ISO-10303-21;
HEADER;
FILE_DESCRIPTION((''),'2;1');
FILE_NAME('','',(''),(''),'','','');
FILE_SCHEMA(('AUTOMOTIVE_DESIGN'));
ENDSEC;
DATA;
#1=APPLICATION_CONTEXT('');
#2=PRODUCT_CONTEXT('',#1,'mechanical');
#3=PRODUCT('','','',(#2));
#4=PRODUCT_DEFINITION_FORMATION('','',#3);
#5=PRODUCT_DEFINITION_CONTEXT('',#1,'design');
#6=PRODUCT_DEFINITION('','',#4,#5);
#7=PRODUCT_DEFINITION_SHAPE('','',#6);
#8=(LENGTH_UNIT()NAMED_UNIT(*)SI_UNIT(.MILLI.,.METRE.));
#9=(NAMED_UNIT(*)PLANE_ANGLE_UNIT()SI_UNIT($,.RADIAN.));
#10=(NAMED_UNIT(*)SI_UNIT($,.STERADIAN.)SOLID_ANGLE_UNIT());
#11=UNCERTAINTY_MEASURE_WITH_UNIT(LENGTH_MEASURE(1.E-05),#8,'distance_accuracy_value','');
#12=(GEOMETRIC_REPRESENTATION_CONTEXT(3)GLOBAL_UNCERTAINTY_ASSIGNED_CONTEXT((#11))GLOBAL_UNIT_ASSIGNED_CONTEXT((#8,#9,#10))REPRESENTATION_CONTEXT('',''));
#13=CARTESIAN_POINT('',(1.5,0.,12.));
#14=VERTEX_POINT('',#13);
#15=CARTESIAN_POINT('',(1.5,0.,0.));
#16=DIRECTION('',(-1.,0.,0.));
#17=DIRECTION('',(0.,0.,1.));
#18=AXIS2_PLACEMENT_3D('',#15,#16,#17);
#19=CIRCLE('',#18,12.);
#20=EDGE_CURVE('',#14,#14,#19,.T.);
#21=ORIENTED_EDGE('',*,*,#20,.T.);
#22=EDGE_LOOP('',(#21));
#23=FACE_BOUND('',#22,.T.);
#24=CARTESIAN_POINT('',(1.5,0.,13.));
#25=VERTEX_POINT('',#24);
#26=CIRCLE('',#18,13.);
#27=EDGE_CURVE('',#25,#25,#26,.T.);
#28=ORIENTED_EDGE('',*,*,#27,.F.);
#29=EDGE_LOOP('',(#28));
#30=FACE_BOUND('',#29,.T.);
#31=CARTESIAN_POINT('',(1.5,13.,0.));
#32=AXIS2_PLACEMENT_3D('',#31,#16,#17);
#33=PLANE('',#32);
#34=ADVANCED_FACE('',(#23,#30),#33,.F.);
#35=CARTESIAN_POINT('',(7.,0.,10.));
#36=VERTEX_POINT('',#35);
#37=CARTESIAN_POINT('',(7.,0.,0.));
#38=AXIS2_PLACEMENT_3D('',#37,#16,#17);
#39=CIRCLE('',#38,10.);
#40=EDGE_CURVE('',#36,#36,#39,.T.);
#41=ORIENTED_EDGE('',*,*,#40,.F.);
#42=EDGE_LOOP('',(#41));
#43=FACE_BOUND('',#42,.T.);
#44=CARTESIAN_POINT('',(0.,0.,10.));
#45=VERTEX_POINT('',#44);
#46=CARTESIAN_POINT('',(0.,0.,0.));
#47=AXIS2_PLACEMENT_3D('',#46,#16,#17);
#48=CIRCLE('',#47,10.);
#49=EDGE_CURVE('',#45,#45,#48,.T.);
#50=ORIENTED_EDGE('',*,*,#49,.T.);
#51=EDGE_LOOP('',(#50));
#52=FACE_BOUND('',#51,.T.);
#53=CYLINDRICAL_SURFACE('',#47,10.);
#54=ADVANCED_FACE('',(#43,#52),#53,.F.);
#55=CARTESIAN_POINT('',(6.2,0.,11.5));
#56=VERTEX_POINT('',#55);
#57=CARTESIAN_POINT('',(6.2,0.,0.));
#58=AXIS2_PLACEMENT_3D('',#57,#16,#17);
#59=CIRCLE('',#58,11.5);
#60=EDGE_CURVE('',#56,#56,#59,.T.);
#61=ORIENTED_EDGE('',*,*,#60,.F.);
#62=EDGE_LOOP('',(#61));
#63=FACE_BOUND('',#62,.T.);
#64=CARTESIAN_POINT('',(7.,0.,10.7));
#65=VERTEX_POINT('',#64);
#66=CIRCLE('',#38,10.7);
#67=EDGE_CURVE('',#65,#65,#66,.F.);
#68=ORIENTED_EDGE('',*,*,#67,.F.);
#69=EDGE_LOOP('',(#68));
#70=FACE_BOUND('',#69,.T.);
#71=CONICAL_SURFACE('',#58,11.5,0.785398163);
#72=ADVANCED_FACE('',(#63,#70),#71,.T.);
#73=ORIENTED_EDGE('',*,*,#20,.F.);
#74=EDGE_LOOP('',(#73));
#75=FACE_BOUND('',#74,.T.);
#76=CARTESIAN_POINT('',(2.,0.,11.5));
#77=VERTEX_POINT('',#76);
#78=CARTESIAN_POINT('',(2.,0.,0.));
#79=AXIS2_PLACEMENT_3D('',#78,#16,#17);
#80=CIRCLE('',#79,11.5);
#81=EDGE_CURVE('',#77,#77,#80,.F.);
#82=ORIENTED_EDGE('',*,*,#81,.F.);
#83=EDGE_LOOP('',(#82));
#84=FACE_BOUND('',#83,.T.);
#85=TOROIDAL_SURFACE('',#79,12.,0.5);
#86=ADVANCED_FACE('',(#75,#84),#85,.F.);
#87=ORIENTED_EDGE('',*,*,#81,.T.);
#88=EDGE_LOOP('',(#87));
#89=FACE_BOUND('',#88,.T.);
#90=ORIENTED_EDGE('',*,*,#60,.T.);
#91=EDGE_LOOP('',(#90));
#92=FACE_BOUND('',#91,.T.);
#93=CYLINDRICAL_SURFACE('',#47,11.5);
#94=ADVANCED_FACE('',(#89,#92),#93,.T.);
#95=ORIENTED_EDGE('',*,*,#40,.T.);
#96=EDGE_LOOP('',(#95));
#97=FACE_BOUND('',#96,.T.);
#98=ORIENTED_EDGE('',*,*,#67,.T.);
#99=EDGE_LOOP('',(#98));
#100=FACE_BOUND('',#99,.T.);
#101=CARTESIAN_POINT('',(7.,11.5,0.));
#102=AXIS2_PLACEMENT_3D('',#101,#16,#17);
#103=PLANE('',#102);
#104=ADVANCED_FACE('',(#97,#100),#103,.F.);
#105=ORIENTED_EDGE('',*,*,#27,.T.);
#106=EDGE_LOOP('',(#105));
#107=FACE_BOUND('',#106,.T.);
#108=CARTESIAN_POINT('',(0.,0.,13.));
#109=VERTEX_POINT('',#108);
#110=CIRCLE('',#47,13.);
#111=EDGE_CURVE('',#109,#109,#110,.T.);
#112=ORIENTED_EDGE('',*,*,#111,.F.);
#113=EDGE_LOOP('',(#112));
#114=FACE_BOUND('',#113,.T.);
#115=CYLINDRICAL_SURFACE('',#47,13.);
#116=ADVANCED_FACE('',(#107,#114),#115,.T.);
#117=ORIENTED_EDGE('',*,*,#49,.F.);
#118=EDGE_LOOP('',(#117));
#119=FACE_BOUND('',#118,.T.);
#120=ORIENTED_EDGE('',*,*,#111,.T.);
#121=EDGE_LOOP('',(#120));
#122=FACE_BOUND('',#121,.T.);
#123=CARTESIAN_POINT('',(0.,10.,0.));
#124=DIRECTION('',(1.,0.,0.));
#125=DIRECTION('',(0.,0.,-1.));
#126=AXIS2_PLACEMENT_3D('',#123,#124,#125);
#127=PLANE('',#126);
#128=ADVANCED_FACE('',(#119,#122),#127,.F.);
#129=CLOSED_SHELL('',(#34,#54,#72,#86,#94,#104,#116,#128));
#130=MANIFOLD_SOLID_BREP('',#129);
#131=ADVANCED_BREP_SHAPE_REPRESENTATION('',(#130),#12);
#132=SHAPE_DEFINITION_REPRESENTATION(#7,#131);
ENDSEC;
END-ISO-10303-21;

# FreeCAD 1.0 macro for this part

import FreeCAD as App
import Part
import Sketcher
Q = App.Units.Quantity


def edges_at(feature, points):
    """Names of the edges that pass closest to the given points."""
    edges = feature.Shape.Edges
    near = lambda p: min(range(len(edges)), key=lambda i: edges[i].distToShape(Part.Vertex(*p))[0])
    return sorted({f"Edge{near(p) + 1}" for p in points})

doc = App.newDocument("Part")
body = doc.addObject("PartDesign::Body", "Body")

sketch1 = doc.addObject("Sketcher::SketchObject", "Sketch")
body.addObject(sketch1)
sketch1.AttachmentSupport = (doc.XY_Plane, [""])
sketch1.MapMode = "FlatFace"
sketch1.addGeometry([
    Part.LineSegment(App.Vector(0, 10, 0), App.Vector(7, 10, 0)),
    Part.LineSegment(App.Vector(7, 10, 0), App.Vector(7, 11.5, 0)),
    Part.LineSegment(App.Vector(7, 11.5, 0), App.Vector(1.5, 11.5, 0)),
    Part.LineSegment(App.Vector(1.5, 11.5, 0), App.Vector(1.5, 13, 0)),
    Part.LineSegment(App.Vector(1.5, 13, 0), App.Vector(0, 13, 0)),
    Part.LineSegment(App.Vector(0, 13, 0), App.Vector(0, 10, 0)),
], False)
sketch1.addConstraint([
    Sketcher.Constraint("Coincident", 0, 2, 1, 1),
    Sketcher.Constraint("Coincident", 1, 2, 2, 1),
    Sketcher.Constraint("Coincident", 2, 2, 3, 1),
    Sketcher.Constraint("Coincident", 3, 2, 4, 1),
    Sketcher.Constraint("Coincident", 4, 2, 5, 1),
    Sketcher.Constraint("Coincident", 5, 2, 0, 1),
    Sketcher.Constraint("Horizontal", 0),
    Sketcher.Constraint("Vertical", 1),
    Sketcher.Constraint("Horizontal", 2),
    Sketcher.Constraint("Vertical", 3),
    Sketcher.Constraint("Horizontal", 4),
    Sketcher.Constraint("Vertical", 5),
    Sketcher.Constraint("PointOnObject", 4, 2, -2),
    Sketcher.Constraint("Equal", 4, 1),
    Sketcher.Constraint("Equal", 1, 3),
    Sketcher.Constraint("DistanceX", 0, 1, 0, 2, Q("7 mm")),
    Sketcher.Constraint("DistanceY", 5, 2, 5, 1, Q("3 mm")),
    Sketcher.Constraint("DistanceY", -1, 1, 0, 2, Q("10 mm")),
])
revolution = doc.addObject("PartDesign::Revolution", "Revolution")
body.addObject(revolution)
revolution.Profile = sketch1
revolution.ReferenceAxis = (sketch1, ["H_Axis"])
revolution.Angle = 360
doc.recompute()

fillet = doc.addObject("PartDesign::Fillet", "Fillet")
body.addObject(fillet)
fillet.Base = (revolution, edges_at(revolution, [(1.5, 0, -11.5)]))
fillet.Radius = 0.5
doc.recompute()

chamfer = doc.addObject("PartDesign::Chamfer", "Chamfer")
body.addObject(chamfer)
chamfer.Base = (fillet, edges_at(fillet, [(7, 0, -11.5)]))
chamfer.Size = 0.8

doc.recompute()
